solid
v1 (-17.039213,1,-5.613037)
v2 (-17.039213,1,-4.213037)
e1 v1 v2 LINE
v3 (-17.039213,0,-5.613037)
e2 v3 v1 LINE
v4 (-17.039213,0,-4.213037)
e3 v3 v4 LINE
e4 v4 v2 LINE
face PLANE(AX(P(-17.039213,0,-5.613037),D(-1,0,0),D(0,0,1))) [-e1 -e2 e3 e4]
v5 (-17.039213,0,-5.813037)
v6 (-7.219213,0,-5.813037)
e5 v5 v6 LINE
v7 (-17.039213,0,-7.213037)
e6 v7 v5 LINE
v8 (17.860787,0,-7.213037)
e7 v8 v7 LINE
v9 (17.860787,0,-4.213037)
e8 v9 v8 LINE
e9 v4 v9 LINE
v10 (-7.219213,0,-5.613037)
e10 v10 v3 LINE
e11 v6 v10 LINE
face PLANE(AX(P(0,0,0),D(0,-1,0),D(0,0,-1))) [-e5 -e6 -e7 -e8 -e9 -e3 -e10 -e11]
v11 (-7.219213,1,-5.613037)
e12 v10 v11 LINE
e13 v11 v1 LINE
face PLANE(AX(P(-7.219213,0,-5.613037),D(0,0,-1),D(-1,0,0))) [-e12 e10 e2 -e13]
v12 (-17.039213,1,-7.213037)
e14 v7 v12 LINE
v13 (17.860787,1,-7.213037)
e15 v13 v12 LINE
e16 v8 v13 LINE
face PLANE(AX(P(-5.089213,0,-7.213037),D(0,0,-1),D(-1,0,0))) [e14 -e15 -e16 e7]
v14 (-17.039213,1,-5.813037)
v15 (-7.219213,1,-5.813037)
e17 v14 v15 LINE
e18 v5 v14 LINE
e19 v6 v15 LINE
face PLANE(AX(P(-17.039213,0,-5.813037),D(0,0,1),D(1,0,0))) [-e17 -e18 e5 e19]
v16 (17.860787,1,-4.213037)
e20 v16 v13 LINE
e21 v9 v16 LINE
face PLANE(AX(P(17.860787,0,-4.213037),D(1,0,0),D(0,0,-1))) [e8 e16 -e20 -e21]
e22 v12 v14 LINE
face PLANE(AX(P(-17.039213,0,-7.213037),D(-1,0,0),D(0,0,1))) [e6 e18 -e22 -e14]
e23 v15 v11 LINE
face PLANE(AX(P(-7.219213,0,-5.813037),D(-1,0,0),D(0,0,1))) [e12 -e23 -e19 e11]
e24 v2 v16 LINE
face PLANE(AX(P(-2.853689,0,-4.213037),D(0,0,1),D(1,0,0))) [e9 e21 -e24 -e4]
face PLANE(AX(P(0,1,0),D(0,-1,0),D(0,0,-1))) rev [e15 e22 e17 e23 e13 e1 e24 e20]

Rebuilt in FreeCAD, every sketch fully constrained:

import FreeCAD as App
import Part
import Sketcher

V = App.Vector
Q = App.Units.Quantity

doc = App.newDocument("Part")
body = doc.addObject("PartDesign::Body", "Body")

# Sketch on XZ plane
sketch1 = body.newObject("Sketcher::SketchObject", "Sketch")
sketch1.AttachmentSupport = (doc.getObject("XZ_Plane"), [""])
sketch1.MapMode = "FlatFace"
sketch1.AttachmentOffset = App.Placement(V(0, 0, -1), App.Rotation())
sketch1.addGeometry([
    Part.LineSegment(V(-7.219213, -5.813037, 0), V(-7.219213, -5.613037, 0)),  # 0
    Part.LineSegment(V(-7.219213, -5.613037, 0), V(-17.039213, -5.613037, 0)),  # 1
    Part.LineSegment(V(-17.039213, -5.613037, 0), V(-17.039213, -4.213037, 0)),  # 2
    Part.LineSegment(V(-17.039213, -4.213037, 0), V(17.860787, -4.213037, 0)),  # 3
    Part.LineSegment(V(17.860787, -4.213037, 0), V(17.860787, -7.213037, 0)),  # 4
    Part.LineSegment(V(17.860787, -7.213037, 0), V(-17.039213, -7.213037, 0)),  # 5
    Part.LineSegment(V(-17.039213, -7.213037, 0), V(-17.039213, -5.813037, 0)),  # 6
    Part.LineSegment(V(-17.039213, -5.813037, 0), V(-7.219213, -5.813037, 0)),  # 7
], False)
sketch1.addConstraint([
    Sketcher.Constraint("Coincident", 0, 2, 1, 1),
    Sketcher.Constraint("Coincident", 1, 2, 2, 1),
    Sketcher.Constraint("Coincident", 2, 2, 3, 1),
    Sketcher.Constraint("Coincident", 3, 2, 4, 1),
    Sketcher.Constraint("Coincident", 4, 2, 5, 1),
    Sketcher.Constraint("Coincident", 5, 2, 6, 1),
    Sketcher.Constraint("Coincident", 6, 2, 7, 1),
    Sketcher.Constraint("Coincident", 7, 2, 0, 1),
    Sketcher.Constraint("Vertical", 0),
    Sketcher.Constraint("Horizontal", 1),
    Sketcher.Constraint("Vertical", 2),
    Sketcher.Constraint("Horizontal", 3),
    Sketcher.Constraint("Vertical", 4),
    Sketcher.Constraint("Horizontal", 5),
    Sketcher.Constraint("Vertical", 6),
    Sketcher.Constraint("Horizontal", 7),
    Sketcher.Constraint("Vertical", 2, 2, 5, 2),
    Sketcher.Constraint("Equal", 2, 6),
    Sketcher.Constraint("DistanceY", 4, 2, 4, 1, Q("3 mm")),
    Sketcher.Constraint("DistanceX", 3, 1, 3, 2, Q("34.9 mm")),
    Sketcher.Constraint("DistanceY", 0, 1, 0, 2, Q("0.2 mm")),
    Sketcher.Constraint("DistanceX", 1, 2, 1, 1, Q("9.82 mm")),
    Sketcher.Constraint("DistanceX", 0, 2, -1, 1, Q("7.219213 mm")),
    Sketcher.Constraint("DistanceY", 0, 2, -1, 1, Q("5.613037 mm")),
])
pad1 = body.newObject("PartDesign::Pad", "Pad")
pad1.Profile = sketch1
pad1.Length = 1

doc.recompute()
